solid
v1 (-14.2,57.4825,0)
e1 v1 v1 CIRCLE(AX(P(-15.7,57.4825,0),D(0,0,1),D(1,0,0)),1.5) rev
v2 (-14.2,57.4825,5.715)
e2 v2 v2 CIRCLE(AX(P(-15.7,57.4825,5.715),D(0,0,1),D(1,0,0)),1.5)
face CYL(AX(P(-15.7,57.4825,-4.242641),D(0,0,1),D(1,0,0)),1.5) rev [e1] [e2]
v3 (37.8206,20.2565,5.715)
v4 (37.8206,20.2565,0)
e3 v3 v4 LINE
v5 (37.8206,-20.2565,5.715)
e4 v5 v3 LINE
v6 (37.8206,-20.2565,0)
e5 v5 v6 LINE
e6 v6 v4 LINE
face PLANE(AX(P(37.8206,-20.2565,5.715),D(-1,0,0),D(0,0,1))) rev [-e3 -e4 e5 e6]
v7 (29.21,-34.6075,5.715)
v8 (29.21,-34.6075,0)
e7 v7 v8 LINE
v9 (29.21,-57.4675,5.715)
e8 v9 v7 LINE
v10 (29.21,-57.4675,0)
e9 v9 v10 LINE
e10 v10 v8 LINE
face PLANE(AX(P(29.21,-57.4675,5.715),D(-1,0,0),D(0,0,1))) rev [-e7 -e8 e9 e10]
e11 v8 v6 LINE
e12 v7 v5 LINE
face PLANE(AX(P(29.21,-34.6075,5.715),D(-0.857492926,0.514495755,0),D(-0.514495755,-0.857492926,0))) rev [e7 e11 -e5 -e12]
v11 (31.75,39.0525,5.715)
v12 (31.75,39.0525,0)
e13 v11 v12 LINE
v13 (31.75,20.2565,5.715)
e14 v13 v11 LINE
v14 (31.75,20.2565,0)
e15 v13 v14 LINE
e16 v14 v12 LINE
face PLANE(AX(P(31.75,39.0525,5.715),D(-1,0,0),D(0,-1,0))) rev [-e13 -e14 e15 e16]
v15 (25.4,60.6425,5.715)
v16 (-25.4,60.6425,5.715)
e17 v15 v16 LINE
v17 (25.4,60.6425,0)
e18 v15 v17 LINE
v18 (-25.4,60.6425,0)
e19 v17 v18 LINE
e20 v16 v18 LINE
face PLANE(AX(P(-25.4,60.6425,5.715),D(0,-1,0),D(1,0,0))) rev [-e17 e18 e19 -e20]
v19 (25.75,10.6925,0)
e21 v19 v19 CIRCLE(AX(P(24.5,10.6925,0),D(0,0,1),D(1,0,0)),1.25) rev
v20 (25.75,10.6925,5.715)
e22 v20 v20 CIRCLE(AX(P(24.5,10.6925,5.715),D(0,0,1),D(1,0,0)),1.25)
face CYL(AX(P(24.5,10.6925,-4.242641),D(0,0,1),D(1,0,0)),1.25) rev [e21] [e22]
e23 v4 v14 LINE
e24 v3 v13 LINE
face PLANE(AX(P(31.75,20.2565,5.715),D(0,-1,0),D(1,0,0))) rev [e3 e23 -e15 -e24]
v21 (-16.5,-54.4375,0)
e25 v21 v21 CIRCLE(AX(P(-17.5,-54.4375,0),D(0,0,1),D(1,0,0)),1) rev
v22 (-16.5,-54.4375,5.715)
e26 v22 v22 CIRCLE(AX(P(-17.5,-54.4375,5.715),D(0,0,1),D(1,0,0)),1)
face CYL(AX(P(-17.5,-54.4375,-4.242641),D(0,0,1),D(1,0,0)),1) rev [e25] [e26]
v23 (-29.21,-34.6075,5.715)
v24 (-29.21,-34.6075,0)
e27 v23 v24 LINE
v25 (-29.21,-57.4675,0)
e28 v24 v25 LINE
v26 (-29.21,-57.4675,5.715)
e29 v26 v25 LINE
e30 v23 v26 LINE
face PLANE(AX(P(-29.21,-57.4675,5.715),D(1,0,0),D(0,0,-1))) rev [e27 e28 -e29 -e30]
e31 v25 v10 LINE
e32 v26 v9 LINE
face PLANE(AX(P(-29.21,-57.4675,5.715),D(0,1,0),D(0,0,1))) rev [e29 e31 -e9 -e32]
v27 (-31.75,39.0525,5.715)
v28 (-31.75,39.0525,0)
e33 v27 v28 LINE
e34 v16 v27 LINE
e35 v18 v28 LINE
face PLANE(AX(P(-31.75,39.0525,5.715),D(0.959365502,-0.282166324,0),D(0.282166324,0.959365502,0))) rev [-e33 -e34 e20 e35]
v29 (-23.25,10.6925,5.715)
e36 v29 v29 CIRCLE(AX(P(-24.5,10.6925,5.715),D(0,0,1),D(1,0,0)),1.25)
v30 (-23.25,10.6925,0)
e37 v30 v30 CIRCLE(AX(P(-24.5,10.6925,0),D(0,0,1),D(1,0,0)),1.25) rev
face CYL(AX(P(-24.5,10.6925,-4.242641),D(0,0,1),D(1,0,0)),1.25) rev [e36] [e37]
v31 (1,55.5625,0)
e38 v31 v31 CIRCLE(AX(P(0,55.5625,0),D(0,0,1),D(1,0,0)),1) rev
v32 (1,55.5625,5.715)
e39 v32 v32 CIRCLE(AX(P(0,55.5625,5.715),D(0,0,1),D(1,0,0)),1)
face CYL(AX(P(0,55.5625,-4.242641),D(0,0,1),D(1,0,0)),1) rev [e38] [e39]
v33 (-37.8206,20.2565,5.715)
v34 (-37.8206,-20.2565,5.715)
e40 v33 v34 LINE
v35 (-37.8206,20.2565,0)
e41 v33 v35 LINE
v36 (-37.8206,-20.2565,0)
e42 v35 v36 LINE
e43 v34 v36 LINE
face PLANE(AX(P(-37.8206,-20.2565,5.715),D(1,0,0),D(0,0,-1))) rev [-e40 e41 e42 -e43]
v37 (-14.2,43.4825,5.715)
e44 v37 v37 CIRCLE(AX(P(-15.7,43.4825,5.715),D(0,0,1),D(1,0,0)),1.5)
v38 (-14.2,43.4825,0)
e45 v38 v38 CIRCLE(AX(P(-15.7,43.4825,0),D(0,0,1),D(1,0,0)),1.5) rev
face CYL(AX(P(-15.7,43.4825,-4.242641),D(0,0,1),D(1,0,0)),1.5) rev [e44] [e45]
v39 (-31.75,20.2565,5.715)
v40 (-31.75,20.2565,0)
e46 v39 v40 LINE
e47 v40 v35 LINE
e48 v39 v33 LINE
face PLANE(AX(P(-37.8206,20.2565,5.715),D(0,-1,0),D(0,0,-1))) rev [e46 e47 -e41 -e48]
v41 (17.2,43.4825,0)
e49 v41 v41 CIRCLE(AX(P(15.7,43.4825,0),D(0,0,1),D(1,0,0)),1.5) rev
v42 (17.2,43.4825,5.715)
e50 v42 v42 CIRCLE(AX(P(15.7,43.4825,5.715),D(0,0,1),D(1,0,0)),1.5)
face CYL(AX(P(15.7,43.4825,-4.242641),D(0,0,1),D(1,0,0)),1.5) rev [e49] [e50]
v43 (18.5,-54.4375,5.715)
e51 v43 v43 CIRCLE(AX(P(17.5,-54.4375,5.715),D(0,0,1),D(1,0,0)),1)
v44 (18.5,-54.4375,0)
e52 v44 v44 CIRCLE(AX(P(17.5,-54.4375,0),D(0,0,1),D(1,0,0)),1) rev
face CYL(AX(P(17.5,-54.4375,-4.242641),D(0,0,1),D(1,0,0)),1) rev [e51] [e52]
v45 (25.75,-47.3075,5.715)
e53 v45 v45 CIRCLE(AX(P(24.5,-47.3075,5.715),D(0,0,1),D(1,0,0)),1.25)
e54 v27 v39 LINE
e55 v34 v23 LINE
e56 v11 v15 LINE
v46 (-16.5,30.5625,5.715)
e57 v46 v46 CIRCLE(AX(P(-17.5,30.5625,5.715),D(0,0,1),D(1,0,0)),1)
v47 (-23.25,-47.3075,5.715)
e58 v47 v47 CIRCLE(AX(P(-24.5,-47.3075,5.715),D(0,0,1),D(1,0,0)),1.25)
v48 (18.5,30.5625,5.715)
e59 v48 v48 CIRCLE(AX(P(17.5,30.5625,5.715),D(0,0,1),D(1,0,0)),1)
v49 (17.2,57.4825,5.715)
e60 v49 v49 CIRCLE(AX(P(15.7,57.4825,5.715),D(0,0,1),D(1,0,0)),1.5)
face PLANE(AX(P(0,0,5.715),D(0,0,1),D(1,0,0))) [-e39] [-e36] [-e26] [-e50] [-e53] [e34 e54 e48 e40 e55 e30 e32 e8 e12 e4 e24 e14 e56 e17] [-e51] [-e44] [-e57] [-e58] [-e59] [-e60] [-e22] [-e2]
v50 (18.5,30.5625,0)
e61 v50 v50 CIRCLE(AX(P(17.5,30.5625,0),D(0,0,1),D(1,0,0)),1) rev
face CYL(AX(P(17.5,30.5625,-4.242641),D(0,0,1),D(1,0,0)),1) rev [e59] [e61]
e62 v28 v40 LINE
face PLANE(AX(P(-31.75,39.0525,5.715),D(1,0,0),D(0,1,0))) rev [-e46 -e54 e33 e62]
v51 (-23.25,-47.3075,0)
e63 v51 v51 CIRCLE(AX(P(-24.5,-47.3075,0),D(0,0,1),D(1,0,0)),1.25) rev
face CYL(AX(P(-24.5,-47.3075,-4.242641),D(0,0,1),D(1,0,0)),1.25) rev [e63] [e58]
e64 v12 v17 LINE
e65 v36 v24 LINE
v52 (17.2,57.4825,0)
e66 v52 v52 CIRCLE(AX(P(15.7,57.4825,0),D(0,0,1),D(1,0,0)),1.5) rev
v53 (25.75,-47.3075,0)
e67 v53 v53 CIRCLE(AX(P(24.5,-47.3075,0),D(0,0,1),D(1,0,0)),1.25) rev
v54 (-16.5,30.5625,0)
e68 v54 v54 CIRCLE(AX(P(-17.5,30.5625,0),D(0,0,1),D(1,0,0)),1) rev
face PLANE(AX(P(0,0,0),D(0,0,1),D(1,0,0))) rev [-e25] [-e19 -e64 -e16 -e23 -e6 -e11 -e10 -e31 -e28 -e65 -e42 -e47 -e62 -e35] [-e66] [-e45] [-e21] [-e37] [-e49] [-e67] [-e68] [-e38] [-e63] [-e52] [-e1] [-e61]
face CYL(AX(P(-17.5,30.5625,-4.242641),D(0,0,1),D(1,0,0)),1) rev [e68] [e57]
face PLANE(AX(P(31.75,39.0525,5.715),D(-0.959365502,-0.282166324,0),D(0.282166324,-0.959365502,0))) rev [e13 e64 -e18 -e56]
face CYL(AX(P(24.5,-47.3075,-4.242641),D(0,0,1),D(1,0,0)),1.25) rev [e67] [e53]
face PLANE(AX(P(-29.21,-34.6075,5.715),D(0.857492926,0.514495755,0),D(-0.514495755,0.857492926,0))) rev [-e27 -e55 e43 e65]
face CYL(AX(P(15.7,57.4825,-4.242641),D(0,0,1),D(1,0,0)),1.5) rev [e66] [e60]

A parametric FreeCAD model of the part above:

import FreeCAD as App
import Part
import Sketcher
Q = App.Units.Quantity

doc = App.newDocument("Part")
body = doc.addObject("PartDesign::Body", "Body")

sketch1 = body.newObject("Sketcher::SketchObject", "Sketch")
sketch1.AttachmentSupport = (doc.getObject("XY_Plane"), [""])
sketch1.MapMode = "FlatFace"
sketch1.addGeometry([
    Part.LineSegment(App.Vector(-38, 20, 0), App.Vector(-38, -20, 0)),
    Part.LineSegment(App.Vector(-38, -20, 0), App.Vector(-29, -35, 0)),
    Part.LineSegment(App.Vector(-29, -35, 0), App.Vector(-29, -57, 0)),
    Part.LineSegment(App.Vector(-29, -57, 0), App.Vector(29, -57, 0)),
    Part.LineSegment(App.Vector(29, -57, 0), App.Vector(29, -35, 0)),
    Part.LineSegment(App.Vector(29, -35, 0), App.Vector(38, -20, 0)),
    Part.LineSegment(App.Vector(38, -20, 0), App.Vector(38, 20, 0)),
    Part.LineSegment(App.Vector(38, 20, 0), App.Vector(32, 20, 0)),
    Part.LineSegment(App.Vector(32, 20, 0), App.Vector(32, 39, 0)),
    Part.LineSegment(App.Vector(32, 39, 0), App.Vector(25, 61, 0)),
    Part.LineSegment(App.Vector(25, 61, 0), App.Vector(-25, 61, 0)),
    Part.LineSegment(App.Vector(-25, 61, 0), App.Vector(-32, 39, 0)),
    Part.LineSegment(App.Vector(-32, 39, 0), App.Vector(-32, 20, 0)),
    Part.LineSegment(App.Vector(-32, 20, 0), App.Vector(-38, 20, 0)),
], False)
sketch1.addConstraint([
    Sketcher.Constraint("Coincident", 0, 2, 1, 1),
    Sketcher.Constraint("Coincident", 1, 2, 2, 1),
    Sketcher.Constraint("Coincident", 2, 2, 3, 1),
    Sketcher.Constraint("Coincident", 3, 2, 4, 1),
    Sketcher.Constraint("Coincident", 4, 2, 5, 1),
    Sketcher.Constraint("Coincident", 5, 2, 6, 1),
    Sketcher.Constraint("Coincident", 6, 2, 7, 1),
    Sketcher.Constraint("Coincident", 7, 2, 8, 1),
    Sketcher.Constraint("Coincident", 8, 2, 9, 1),
    Sketcher.Constraint("Coincident", 9, 2, 10, 1),
    Sketcher.Constraint("Coincident", 10, 2, 11, 1),
    Sketcher.Constraint("Coincident", 11, 2, 12, 1),
    Sketcher.Constraint("Coincident", 12, 2, 13, 1),
    Sketcher.Constraint("Coincident", 13, 2, 0, 1),
    Sketcher.Constraint("Vertical", 0),
    Sketcher.Constraint("Vertical", 2),
    Sketcher.Constraint("Horizontal", 3),
    Sketcher.Constraint("Vertical", 4),
    Sketcher.Constraint("Vertical", 6),
    Sketcher.Constraint("Horizontal", 7),
    Sketcher.Constraint("Vertical", 8),
    Sketcher.Constraint("Horizontal", 10),
    Sketcher.Constraint("Vertical", 12),
    Sketcher.Constraint("Horizontal", 13),
    Sketcher.Constraint("Symmetric", 0, 2, 6, 2, -1, 1),
    Sketcher.Constraint("Symmetric", 1, 2, 4, 2, -2),
    Sketcher.Constraint("Symmetric", 8, 2, 11, 2, -2),
    Sketcher.Constraint("Horizontal", 0, 2, 5, 2),
    Sketcher.Constraint("Horizontal", 7, 2, 12, 2),
    Sketcher.Constraint("Equal", 9, 11),
    Sketcher.Constraint("DistanceX", 10, 2, 10, 1, Q("2 in")),
    Sketcher.Constraint("DistanceX", 3, 1, 3, 2, Q("2.3 in")),
    Sketcher.Constraint("DistanceY", 2, 2, 2, 1, Q("0.9 in")),
    Sketcher.Constraint("DistanceY", 8, 1, 8, 2, Q("0.74 in")),
    Sketcher.Constraint("DistanceX", 4, 2, 7, 2, Q("0.1 in")),
    Sketcher.Constraint("DistanceY", 4, 2, 8, 2, Q("2.9 in")),
    Sketcher.Constraint("DistanceX", 7, 2, 7, 1, Q("0.239 in")),
    Sketcher.Constraint("DistanceY", 0, 2, 0, 1, Q("1.595 in")),
    Sketcher.Constraint("DistanceY", 8, 2, 9, 2, Q("0.85 in")),
])
pad1 = body.newObject("PartDesign::Pad", "Pad")
pad1.Profile = sketch1
pad1.Length = Q("0.225 in")

sketch2 = body.newObject("Sketcher::SketchObject", "Sketch001")
sketch2.AttachmentSupport = (doc.getObject("XY_Plane"), [""])
sketch2.MapMode = "FlatFace"
sketch2.AttachmentOffset = App.Placement(App.Vector(0, 0, 0.225 * 25.4), App.Rotation())
sketch2.addGeometry([
    Part.Circle(App.Vector(-24.5, 10.7, 0), App.Vector(0, 0, 1), 1.2),
    Part.Circle(App.Vector(24.5, 10.7, 0), App.Vector(0, 0, 1), 1.2),
    Part.Circle(App.Vector(-24.5, -47.3, 0), App.Vector(0, 0, 1), 1.2),
    Part.Circle(App.Vector(24.5, -47.3, 0), App.Vector(0, 0, 1), 1.2),
    Part.Circle(App.Vector(0, 55.6, 0), App.Vector(0, 0, 1), 1),
    Part.Circle(App.Vector(17.5, 30.6, 0), App.Vector(0, 0, 1), 1),
    Part.Circle(App.Vector(-17.5, 30.6, 0), App.Vector(0, 0, 1), 1),
    Part.Circle(App.Vector(-17.5, -54.4, 0), App.Vector(0, 0, 1), 1),
    Part.Circle(App.Vector(17.5, -54.4, 0), App.Vector(0, 0, 1), 1),
    Part.Circle(App.Vector(-15.7, 57.5, 0), App.Vector(0, 0, 1), 1.5),
    Part.Circle(App.Vector(15.7, 57.5, 0), App.Vector(0, 0, 1), 1.5),
    Part.Circle(App.Vector(15.7, 43.5, 0), App.Vector(0, 0, 1), 1.5),
    Part.Circle(App.Vector(-15.7, 43.5, 0), App.Vector(0, 0, 1), 1.5),
], False)
sketch2.addConstraint([
    Sketcher.Constraint("Equal", 0, 1),
    Sketcher.Constraint("Equal", 1, 2),
    Sketcher.Constraint("Equal", 2, 3),
    Sketcher.Constraint("Equal", 4, 5),
    Sketcher.Constraint("Equal", 5, 6),
    Sketcher.Constraint("Equal", 6, 7),
    Sketcher.Constraint("Equal", 7, 8),
    Sketcher.Constraint("Equal", 9, 10),
    Sketcher.Constraint("Equal", 10, 11),
    Sketcher.Constraint("Equal", 11, 12),
    Sketcher.Constraint("Symmetric", 0, 3, 1, 3, -2),
    Sketcher.Constraint("Symmetric", 2, 3, 3, 3, -2),
    Sketcher.Constraint("Symmetric", 5, 3, 6, 3, -2),
    Sketcher.Constraint("Symmetric", 7, 3, 8, 3, -2),
    Sketcher.Constraint("Symmetric", 9, 3, 10, 3, -2),
    Sketcher.Constraint("Symmetric", 11, 3, 12, 3, -2),
    Sketcher.Constraint("PointOnObject", 4, 3, -2),
    Sketcher.Constraint("Vertical", 0, 3, 2, 3),
    Sketcher.Constraint("Vertical", 6, 3, 7, 3),
    Sketcher.Constraint("Vertical", 10, 3, 11, 3),
    Sketcher.Constraint("Diameter", 0, 2.5),
    Sketcher.Constraint("Diameter", 4, 2.0),
    Sketcher.Constraint("Diameter", 9, 3.0),
    Sketcher.Constraint("DistanceY", 2, 3, 4, 3, Q("4.05 in")),
    Sketcher.Constraint("DistanceY", -1, 1, 4, 3, Q("2.1875 in")),
    Sketcher.Constraint("DistanceX", 0, 3, -1, 1, 24.5),
    Sketcher.Constraint("DistanceY", -1, 1, 0, 3, 10.6925),
    Sketcher.Constraint("DistanceX", -1, 1, 5, 3, 17.5),
    Sketcher.Constraint("DistanceY", -1, 1, 5, 3, 30.5625),
    Sketcher.Constraint("DistanceY", 7, 3, -1, 1, 54.4375),
    Sketcher.Constraint("DistanceX", 9, 3, -1, 1, 15.7),
    Sketcher.Constraint("DistanceY", -1, 1, 9, 3, 57.4825),
    Sketcher.Constraint("DistanceY", -1, 1, 11, 3, 43.4825),
])
pocket1 = body.newObject("PartDesign::Pocket", "Pocket")
pocket1.Profile = sketch2
pocket1.Length = Q("0.225 in")

doc.recompute()
